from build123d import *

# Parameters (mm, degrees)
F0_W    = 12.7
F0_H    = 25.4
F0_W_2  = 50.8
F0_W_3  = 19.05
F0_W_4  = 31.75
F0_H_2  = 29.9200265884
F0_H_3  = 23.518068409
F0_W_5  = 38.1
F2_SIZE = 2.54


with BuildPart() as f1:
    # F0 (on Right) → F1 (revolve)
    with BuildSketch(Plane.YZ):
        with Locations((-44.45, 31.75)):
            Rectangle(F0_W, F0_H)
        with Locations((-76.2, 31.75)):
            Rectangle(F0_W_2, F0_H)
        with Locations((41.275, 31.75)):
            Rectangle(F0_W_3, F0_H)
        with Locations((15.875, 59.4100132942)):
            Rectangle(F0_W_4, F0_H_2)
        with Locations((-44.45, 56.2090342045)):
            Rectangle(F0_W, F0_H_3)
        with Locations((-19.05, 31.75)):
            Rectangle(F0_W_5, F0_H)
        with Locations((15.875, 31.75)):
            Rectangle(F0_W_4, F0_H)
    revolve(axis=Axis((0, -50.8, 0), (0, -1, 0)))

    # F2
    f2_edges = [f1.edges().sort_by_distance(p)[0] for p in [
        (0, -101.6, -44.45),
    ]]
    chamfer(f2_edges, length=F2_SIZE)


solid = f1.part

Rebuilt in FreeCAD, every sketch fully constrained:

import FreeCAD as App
import Part
import Sketcher

V = App.Vector
Q = App.Units.Quantity


def edges_at(feature, points):
    """Names of the edges that pass closest to the given points."""
    edges = feature.Shape.Edges
    near = lambda p: min(range(len(edges)), key=lambda i: edges[i].distToShape(Part.Vertex(*p))[0])
    return sorted({f"Edge{near(p) + 1}" for p in points})

doc = App.newDocument("Part")
params = doc.addObject("Spreadsheet::Sheet", "Params")
for row, (alias, value) in enumerate([
    ("sketch1_width", "2 in"),
    ("sketch1_width2", "6 in"),
    ("sketch1_height", "1 in"),
    ("sketch1_width3", "0.5 in"),
    ("sketch1_width4", "0.75 in"),
    ("revolution_angle", "360 deg"),
    ("chamfer_size", "0.1 in"),
], start=1):
    params.set(f"A{row}", alias)
    params.set(f"B{row}", "=" + value)
    params.setAlias(f"B{row}", alias)

body = doc.addObject("PartDesign::Body", "Body")

# Sketch on YZ plane
sketch1 = body.newObject("Sketcher::SketchObject", "Sketch")
sketch1.AttachmentSupport = (doc.getObject("YZ_Plane"), [""])
sketch1.MapMode = "FlatFace"
sketch1.addGeometry([
    Part.LineSegment(V(-38.1, 44.45, 0), V(-38.1, 67.968068, 0)),  # 0
    Part.LineSegment(V(-38.1, 67.968068, 0), V(-50.8, 67.968068, 0)),  # 1
    Part.LineSegment(V(-50.8, 67.968068, 0), V(-50.8, 44.45, 0)),  # 2
    Part.LineSegment(V(-50.8, 44.45, 0), V(-101.6, 44.45, 0)),  # 3
    Part.LineSegment(V(-101.6, 44.45, 0), V(-101.6, 19.05, 0)),  # 4
    Part.LineSegment(V(-101.6, 19.05, 0), V(50.8, 19.05, 0)),  # 5
    Part.LineSegment(V(50.8, 19.05, 0), V(50.8, 44.45, 0)),  # 6
    Part.LineSegment(V(50.8, 44.45, 0), V(31.75, 44.45, 0)),  # 7
    Part.LineSegment(V(31.75, 44.45, 0), V(31.75, 74.370027, 0)),  # 8
    Part.LineSegment(V(31.75, 74.370027, 0), V(0, 74.370027, 0)),  # 9
    Part.LineSegment(V(0, 74.370027, 0), V(0, 44.45, 0)),  # 10
    Part.LineSegment(V(0, 44.45, 0), V(-38.1, 44.45, 0)),  # 11
], False)
sketch1.addConstraint([
    Sketcher.Constraint("Coincident", 0, 2, 1, 1),
    Sketcher.Constraint("Coincident", 1, 2, 2, 1),
    Sketcher.Constraint("Coincident", 2, 2, 3, 1),
    Sketcher.Constraint("Coincident", 3, 2, 4, 1),
    Sketcher.Constraint("Coincident", 4, 2, 5, 1),
    Sketcher.Constraint("Coincident", 5, 2, 6, 1),
    Sketcher.Constraint("Coincident", 6, 2, 7, 1),
    Sketcher.Constraint("Coincident", 7, 2, 8, 1),
    Sketcher.Constraint("Coincident", 8, 2, 9, 1),
    Sketcher.Constraint("Coincident", 9, 2, 10, 1),
    Sketcher.Constraint("Coincident", 10, 2, 11, 1),
    Sketcher.Constraint("Coincident", 11, 2, 0, 1),
    Sketcher.Constraint("Vertical", 0),
    Sketcher.Constraint("Horizontal", 1),
    Sketcher.Constraint("Vertical", 2),
    Sketcher.Constraint("Horizontal", 3),
    Sketcher.Constraint("Vertical", 4),
    Sketcher.Constraint("Horizontal", 5),
    Sketcher.Constraint("Vertical", 6),
    Sketcher.Constraint("Horizontal", 7),
    Sketcher.Constraint("Vertical", 8),
    Sketcher.Constraint("Horizontal", 9),
    Sketcher.Constraint("Vertical", 10),
    Sketcher.Constraint("Horizontal", 11),
    Sketcher.Constraint("Symmetric", 2, 2, 6, 2, -2),
    Sketcher.Constraint("PointOnObject", 9, 2, -2),
    Sketcher.Constraint("Horizontal", 7, 2, 10, 2),
    Sketcher.Constraint("DistanceX", 3, 2, 3, 1, Q("2 in")),
    Sketcher.Constraint("DistanceX", 5, 1, 5, 2, Q("6 in")),
    Sketcher.Constraint("DistanceY", 4, 2, 4, 1, Q("1 in")),
    Sketcher.Constraint("DistanceX", 1, 2, 1, 1, Q("0.5 in")),
    Sketcher.Constraint("DistanceX", 7, 2, 7, 1, Q("0.75 in")),
    Sketcher.Constraint("DistanceY", -1, 1, 2, 2, Q("1.75 in")),
    Sketcher.Constraint("DistanceY", 0, 1, 0, 2, Q("23.518068 mm")),
    Sketcher.Constraint("DistanceY", 8, 1, 8, 2, Q("29.920027 mm")),
])
sketch1.setExpression("Constraints[27]", "Params.sketch1_width")
sketch1.setExpression("Constraints[28]", "Params.sketch1_width2")
sketch1.setExpression("Constraints[29]", "Params.sketch1_height")
sketch1.setExpression("Constraints[30]", "Params.sketch1_width3")
sketch1.setExpression("Constraints[31]", "Params.sketch1_width4")
revolution = body.newObject("PartDesign::Revolution", "Revolution")
revolution.Profile = sketch1
revolution.ReferenceAxis = (sketch1, ["H_Axis"])
revolution.setExpression("Angle", "Params.revolution_angle")
doc.recompute()

chamfer = body.newObject("PartDesign::Chamfer", "Chamfer")
chamfer.Base = (revolution, edges_at(revolution, [(0, -101.6, -44.45)]))
chamfer.setExpression("Size", "Params.chamfer_size")

doc.recompute()
